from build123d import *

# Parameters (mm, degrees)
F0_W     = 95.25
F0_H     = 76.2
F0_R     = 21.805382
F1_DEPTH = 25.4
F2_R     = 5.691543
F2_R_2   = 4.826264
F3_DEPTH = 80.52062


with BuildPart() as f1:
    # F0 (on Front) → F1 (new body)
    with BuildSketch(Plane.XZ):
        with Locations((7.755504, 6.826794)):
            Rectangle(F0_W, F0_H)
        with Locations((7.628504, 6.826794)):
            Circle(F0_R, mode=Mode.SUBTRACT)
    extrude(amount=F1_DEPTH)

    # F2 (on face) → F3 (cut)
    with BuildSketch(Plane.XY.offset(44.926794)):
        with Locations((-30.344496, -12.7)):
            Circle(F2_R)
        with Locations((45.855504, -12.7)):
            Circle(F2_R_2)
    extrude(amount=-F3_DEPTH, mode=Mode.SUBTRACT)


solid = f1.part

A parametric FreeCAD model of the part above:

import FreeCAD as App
import Part
import Sketcher

V = App.Vector
Q = App.Units.Quantity


def add_polygon(sketch, points):
    """Adds a closed chain of lines whose ends are joined by coincident constraints."""
    first, n = sketch.GeometryCount, len(points)
    for a, b in zip(points, points[1:] + points[:1]):
        sketch.addGeometry(Part.LineSegment(App.Vector(*a, 0), App.Vector(*b, 0)), False)
    for i in range(n):
        sketch.addConstraint(Sketcher.Constraint("Coincident", first + i, 2, first + (i + 1) % n, 1))

doc = App.newDocument("Part")
body = doc.addObject("PartDesign::Body", "Body")

# Sketch on XZ plane
sketch1 = body.newObject("Sketcher::SketchObject", "Sketch")
sketch1.AttachmentSupport = (doc.getObject("XZ_Plane"), [""])
sketch1.MapMode = "FlatFace"
add_polygon(sketch1, [(-40, 45), (-40, -31), (55, -31), (55, 45)])  # lines 0-3
sketch1.addGeometry(Part.Circle(V(8, 7, 0), V(0, 0, 1), 22), False)  # 4
sketch1.addConstraint(Sketcher.Constraint("Vertical", 0))
sketch1.addConstraint(Sketcher.Constraint("Horizontal", 1))
sketch1.addConstraint(Sketcher.Constraint("Vertical", 2))
sketch1.addConstraint(Sketcher.Constraint("Horizontal", 3))
sketch1.addConstraint(Sketcher.Constraint("DistanceY", 0, 2, 0, 1, Q("3 in")))
sketch1.addConstraint(Sketcher.Constraint("DistanceX", 1, 1, 1, 2, Q("3.75 in")))
sketch1.addConstraint(Sketcher.Constraint("DistanceY", 0, 2, 4, 3, Q("1.5 in")))
sketch1.addConstraint(Sketcher.Constraint("DistanceX", 0, 2, 4, 3, Q("1.87 in")))
sketch1.addConstraint(Sketcher.Constraint("Diameter", 4, Q("43.610764 mm")))
sketch1.addConstraint(Sketcher.Constraint("DistanceX", -1, 1, 4, 3, Q("7.628504 mm")))
sketch1.addConstraint(Sketcher.Constraint("DistanceY", -1, 1, 4, 3, Q("6.826794 mm")))
pad1 = body.newObject("PartDesign::Pad", "Pad")
pad1.Profile = sketch1
pad1.Length = Q("1 in")

# Sketch on XY plane
sketch2 = body.newObject("Sketcher::SketchObject", "Sketch001")
sketch2.AttachmentSupport = (doc.getObject("XY_Plane"), [""])
sketch2.MapMode = "FlatFace"
sketch2.AttachmentOffset = App.Placement(V(0, 0, 44.926794), App.Rotation())
sketch2.addGeometry(Part.Circle(V(-30.3, -12.7, 0), V(0, 0, 1), 5.7), False)
sketch2.addGeometry(Part.Circle(V(45.9, -12.7, 0), V(0, 0, 1), 4.8), False)
sketch2.addConstraint(Sketcher.Constraint("Horizontal", 0, 3, 1, 3))
sketch2.addConstraint(Sketcher.Constraint("DistanceX", 0, 3, 1, 3, Q("3 in")))
sketch2.addConstraint(Sketcher.Constraint("DistanceY", 0, 3, -1, 1, Q("0.5 in")))
sketch2.addConstraint(Sketcher.Constraint("Diameter", 0, Q("11.383086 mm")))
sketch2.addConstraint(Sketcher.Constraint("Diameter", 1, Q("9.652528 mm")))
sketch2.addConstraint(Sketcher.Constraint("DistanceX", 0, 3, -1, 1, Q("30.344496 mm")))
pocket1 = body.newObject("PartDesign::Pocket", "Pocket")
pocket1.Profile = sketch2
pocket1.Length = 80.52062

doc.recompute()
